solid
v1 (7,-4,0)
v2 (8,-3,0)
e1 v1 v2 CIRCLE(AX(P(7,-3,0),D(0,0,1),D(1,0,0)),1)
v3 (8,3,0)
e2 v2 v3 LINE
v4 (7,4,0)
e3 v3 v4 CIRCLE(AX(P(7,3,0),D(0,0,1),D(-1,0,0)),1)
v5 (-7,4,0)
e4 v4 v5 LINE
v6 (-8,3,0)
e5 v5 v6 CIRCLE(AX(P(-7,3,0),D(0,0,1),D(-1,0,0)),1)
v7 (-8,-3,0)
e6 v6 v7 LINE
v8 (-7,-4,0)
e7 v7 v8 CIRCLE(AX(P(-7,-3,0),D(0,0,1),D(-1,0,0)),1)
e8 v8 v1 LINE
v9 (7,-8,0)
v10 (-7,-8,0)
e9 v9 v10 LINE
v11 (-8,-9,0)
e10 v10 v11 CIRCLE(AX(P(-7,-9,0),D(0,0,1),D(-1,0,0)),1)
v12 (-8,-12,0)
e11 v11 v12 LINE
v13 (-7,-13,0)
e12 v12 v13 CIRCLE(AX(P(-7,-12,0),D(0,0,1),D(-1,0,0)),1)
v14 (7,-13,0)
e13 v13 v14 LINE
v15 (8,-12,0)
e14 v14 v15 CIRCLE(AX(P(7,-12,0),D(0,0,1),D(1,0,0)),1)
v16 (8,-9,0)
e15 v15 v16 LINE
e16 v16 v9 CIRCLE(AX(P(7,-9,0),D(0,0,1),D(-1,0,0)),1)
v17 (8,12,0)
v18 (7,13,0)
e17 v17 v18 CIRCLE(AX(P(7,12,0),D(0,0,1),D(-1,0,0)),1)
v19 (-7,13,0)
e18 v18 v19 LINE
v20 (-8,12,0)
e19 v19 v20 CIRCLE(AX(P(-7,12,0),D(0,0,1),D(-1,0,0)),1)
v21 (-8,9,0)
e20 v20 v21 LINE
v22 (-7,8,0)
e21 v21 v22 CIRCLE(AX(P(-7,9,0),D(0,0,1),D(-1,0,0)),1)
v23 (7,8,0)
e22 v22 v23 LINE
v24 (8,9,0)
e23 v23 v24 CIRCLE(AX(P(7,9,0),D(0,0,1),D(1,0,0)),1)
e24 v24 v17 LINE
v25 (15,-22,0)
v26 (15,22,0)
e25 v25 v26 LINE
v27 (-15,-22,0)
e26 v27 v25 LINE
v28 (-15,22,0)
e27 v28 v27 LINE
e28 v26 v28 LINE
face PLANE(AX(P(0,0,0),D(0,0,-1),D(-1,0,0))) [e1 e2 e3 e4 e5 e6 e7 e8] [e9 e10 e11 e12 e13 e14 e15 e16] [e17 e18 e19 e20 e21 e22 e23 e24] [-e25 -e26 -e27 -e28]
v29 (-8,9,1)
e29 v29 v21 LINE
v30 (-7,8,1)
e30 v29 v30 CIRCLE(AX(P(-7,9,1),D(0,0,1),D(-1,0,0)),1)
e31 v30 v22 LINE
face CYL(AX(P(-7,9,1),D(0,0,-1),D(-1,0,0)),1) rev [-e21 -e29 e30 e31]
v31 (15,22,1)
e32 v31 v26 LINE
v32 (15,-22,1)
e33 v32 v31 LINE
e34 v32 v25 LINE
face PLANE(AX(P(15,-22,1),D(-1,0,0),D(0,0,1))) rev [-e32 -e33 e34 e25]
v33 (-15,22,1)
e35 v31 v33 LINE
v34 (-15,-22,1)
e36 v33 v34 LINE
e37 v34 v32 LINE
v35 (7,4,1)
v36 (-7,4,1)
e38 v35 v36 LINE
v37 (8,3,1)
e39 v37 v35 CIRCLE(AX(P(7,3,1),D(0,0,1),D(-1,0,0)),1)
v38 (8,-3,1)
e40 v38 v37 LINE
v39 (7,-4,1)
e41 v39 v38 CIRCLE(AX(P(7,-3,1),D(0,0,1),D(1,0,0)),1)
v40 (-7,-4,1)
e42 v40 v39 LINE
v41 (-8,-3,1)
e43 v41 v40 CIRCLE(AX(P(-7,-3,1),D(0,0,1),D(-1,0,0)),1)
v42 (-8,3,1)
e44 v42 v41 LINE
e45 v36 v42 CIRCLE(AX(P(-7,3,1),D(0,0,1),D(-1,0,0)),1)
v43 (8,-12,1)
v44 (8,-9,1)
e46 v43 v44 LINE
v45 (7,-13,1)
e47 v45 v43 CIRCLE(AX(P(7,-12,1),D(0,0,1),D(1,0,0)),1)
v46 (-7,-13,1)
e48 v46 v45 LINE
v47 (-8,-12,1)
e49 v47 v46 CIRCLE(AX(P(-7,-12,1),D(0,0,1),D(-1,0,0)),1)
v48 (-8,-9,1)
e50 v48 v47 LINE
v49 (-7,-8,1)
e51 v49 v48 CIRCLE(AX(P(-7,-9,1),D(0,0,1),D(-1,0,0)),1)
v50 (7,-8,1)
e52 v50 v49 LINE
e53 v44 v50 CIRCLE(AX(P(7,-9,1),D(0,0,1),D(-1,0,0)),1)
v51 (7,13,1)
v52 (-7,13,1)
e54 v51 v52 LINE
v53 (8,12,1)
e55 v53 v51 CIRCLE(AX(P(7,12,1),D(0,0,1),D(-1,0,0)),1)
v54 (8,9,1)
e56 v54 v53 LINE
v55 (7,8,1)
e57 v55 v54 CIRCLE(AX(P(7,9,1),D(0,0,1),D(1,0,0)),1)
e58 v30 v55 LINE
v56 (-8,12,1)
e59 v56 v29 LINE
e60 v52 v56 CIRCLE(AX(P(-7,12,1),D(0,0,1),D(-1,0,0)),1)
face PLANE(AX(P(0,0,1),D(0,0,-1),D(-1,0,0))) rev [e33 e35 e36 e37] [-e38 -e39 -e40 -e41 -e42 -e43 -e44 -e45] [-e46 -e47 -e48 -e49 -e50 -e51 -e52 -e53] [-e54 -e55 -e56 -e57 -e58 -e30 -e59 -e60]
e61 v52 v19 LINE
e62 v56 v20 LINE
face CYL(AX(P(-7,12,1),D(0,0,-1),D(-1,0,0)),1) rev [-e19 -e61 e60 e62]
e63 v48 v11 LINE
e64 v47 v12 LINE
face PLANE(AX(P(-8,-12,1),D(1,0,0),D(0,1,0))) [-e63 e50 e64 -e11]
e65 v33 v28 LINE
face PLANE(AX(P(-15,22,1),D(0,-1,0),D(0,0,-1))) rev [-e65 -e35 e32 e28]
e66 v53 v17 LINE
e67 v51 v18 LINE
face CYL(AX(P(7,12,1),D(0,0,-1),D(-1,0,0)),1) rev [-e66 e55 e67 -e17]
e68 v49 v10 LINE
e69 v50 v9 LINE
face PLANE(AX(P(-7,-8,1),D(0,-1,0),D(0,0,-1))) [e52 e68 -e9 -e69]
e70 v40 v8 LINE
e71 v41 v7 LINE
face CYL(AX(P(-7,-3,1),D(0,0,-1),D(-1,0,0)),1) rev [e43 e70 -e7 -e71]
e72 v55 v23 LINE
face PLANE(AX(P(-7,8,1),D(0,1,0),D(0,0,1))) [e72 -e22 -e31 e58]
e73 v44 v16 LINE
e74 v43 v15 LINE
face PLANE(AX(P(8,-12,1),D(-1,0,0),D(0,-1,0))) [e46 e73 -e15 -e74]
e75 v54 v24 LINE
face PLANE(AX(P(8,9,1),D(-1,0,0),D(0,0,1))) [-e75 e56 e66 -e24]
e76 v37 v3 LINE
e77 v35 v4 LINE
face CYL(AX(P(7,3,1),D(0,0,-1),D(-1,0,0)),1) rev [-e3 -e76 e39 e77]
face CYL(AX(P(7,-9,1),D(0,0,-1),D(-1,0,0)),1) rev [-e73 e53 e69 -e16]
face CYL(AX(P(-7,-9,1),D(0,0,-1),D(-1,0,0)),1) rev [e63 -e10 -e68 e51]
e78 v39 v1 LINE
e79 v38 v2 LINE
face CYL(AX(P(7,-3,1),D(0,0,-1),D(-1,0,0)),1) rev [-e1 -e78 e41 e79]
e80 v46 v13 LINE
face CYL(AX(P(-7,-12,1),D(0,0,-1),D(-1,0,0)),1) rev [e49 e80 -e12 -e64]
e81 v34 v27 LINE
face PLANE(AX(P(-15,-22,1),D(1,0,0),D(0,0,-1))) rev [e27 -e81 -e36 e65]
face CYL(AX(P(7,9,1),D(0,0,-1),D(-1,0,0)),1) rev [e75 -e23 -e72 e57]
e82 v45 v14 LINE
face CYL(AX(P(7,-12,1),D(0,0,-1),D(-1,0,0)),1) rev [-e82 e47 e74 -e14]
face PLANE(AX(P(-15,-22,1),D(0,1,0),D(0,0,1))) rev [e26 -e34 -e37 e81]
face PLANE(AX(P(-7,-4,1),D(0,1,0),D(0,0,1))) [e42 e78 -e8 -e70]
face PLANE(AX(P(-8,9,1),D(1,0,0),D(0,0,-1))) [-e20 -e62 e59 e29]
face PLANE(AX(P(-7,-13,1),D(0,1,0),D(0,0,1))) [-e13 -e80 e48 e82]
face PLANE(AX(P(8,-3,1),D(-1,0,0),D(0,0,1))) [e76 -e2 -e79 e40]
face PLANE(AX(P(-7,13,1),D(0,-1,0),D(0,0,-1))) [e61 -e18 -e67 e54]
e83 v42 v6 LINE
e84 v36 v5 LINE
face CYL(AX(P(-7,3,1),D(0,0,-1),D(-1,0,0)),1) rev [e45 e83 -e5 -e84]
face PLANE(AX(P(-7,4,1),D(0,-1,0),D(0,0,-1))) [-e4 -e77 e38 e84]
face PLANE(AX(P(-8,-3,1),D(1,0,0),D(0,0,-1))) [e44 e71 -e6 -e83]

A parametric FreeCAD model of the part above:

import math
import FreeCAD as App
import Part
import Sketcher
Q = App.Units.Quantity

doc = App.newDocument("Part")
body = doc.addObject("PartDesign::Body", "Body")

# Sketch on XY plane
sketch1 = body.newObject("Sketcher::SketchObject", "Sketch")
sketch1.AttachmentSupport = (doc.getObject("XY_Plane"), [""])
sketch1.MapMode = "FlatFace"
sketch1.addGeometry([
    Part.LineSegment(App.Vector(-15, 22, 0), App.Vector(-15, -22, 0)),  # 0
    Part.LineSegment(App.Vector(-15, -22, 0), App.Vector(15, -22, 0)),  # 1
    Part.LineSegment(App.Vector(15, -22, 0), App.Vector(15, 22, 0)),  # 2
    Part.LineSegment(App.Vector(15, 22, 0), App.Vector(-15, 22, 0)),  # 3
    Part.LineSegment(App.Vector(7, -13, 0), App.Vector(-7, -13, 0)),  # 4
    Part.ArcOfCircle(Part.Circle(App.Vector(-7, -12, 0), App.Vector(0, 0, 1), 1), math.radians(-180), math.radians(-90)),  # 5
    Part.LineSegment(App.Vector(-8, -12, 0), App.Vector(-8, -9, 0)),  # 6
    Part.ArcOfCircle(Part.Circle(App.Vector(-7, -9, 0), App.Vector(0, 0, 1), 1), math.radians(90), math.radians(180)),  # 7
    Part.LineSegment(App.Vector(-7, -8, 0), App.Vector(7, -8, 0)),  # 8
    Part.ArcOfCircle(Part.Circle(App.Vector(7, -9, 0), App.Vector(0, 0, 1), 1), math.radians(0), math.radians(90)),  # 9
    Part.LineSegment(App.Vector(8, -9, 0), App.Vector(8, -12, 0)),  # 10
    Part.ArcOfCircle(Part.Circle(App.Vector(7, -12, 0), App.Vector(0, 0, 1), 1), math.radians(-90), math.radians(0)),  # 11
    Part.LineSegment(App.Vector(7, -4, 0), App.Vector(-7, -4, 0)),  # 12
    Part.ArcOfCircle(Part.Circle(App.Vector(-7, -3, 0), App.Vector(0, 0, 1), 1), math.radians(-180), math.radians(-90)),  # 13
    Part.LineSegment(App.Vector(-8, -3, 0), App.Vector(-8, 3, 0)),  # 14
    Part.ArcOfCircle(Part.Circle(App.Vector(-7, 3, 0), App.Vector(0, 0, 1), 1), math.radians(90), math.radians(180)),  # 15
    Part.LineSegment(App.Vector(-7, 4, 0), App.Vector(7, 4, 0)),  # 16
    Part.ArcOfCircle(Part.Circle(App.Vector(7, 3, 0), App.Vector(0, 0, 1), 1), math.radians(0), math.radians(90)),  # 17
    Part.LineSegment(App.Vector(8, 3, 0), App.Vector(8, -3, 0)),  # 18
    Part.ArcOfCircle(Part.Circle(App.Vector(7, -3, 0), App.Vector(0, 0, 1), 1), math.radians(-90), math.radians(0)),  # 19
    Part.LineSegment(App.Vector(7, 8, 0), App.Vector(-7, 8, 0)),  # 20
    Part.ArcOfCircle(Part.Circle(App.Vector(-7, 9, 0), App.Vector(0, 0, 1), 1), math.radians(-180), math.radians(-90)),  # 21
    Part.LineSegment(App.Vector(-8, 9, 0), App.Vector(-8, 12, 0)),  # 22
    Part.ArcOfCircle(Part.Circle(App.Vector(-7, 12, 0), App.Vector(0, 0, 1), 1), math.radians(90), math.radians(180)),  # 23
    Part.LineSegment(App.Vector(-7, 13, 0), App.Vector(7, 13, 0)),  # 24
    Part.ArcOfCircle(Part.Circle(App.Vector(7, 12, 0), App.Vector(0, 0, 1), 1), math.radians(0), math.radians(90)),  # 25
    Part.LineSegment(App.Vector(8, 12, 0), App.Vector(8, 9, 0)),  # 26
    Part.ArcOfCircle(Part.Circle(App.Vector(7, 9, 0), App.Vector(0, 0, 1), 1), math.radians(-90), math.radians(0)),  # 27
], False)
sketch1.addConstraint([
    Sketcher.Constraint("Coincident", 0, 2, 1, 1),
    Sketcher.Constraint("Coincident", 1, 2, 2, 1),
    Sketcher.Constraint("Coincident", 2, 2, 3, 1),
    Sketcher.Constraint("Coincident", 3, 2, 0, 1),
    Sketcher.Constraint("Tangent", 4, 2, 5, 2),
    Sketcher.Constraint("Tangent", 5, 1, 6, 1),
    Sketcher.Constraint("Tangent", 6, 2, 7, 2),
    Sketcher.Constraint("Tangent", 7, 1, 8, 1),
    Sketcher.Constraint("Tangent", 8, 2, 9, 2),
    Sketcher.Constraint("Tangent", 9, 1, 10, 1),
    Sketcher.Constraint("Tangent", 10, 2, 11, 2),
    Sketcher.Constraint("Tangent", 11, 1, 4, 1),
    Sketcher.Constraint("Tangent", 12, 2, 13, 2),
    Sketcher.Constraint("Tangent", 13, 1, 14, 1),
    Sketcher.Constraint("Tangent", 14, 2, 15, 2),
    Sketcher.Constraint("Tangent", 15, 1, 16, 1),
    Sketcher.Constraint("Tangent", 16, 2, 17, 2),
    Sketcher.Constraint("Tangent", 17, 1, 18, 1),
    Sketcher.Constraint("Tangent", 18, 2, 19, 2),
    Sketcher.Constraint("Tangent", 19, 1, 12, 1),
    Sketcher.Constraint("Tangent", 20, 2, 21, 2),
    Sketcher.Constraint("Tangent", 21, 1, 22, 1),
    Sketcher.Constraint("Tangent", 22, 2, 23, 2),
    Sketcher.Constraint("Tangent", 23, 1, 24, 1),
    Sketcher.Constraint("Tangent", 24, 2, 25, 2),
    Sketcher.Constraint("Tangent", 25, 1, 26, 1),
    Sketcher.Constraint("Tangent", 26, 2, 27, 2),
    Sketcher.Constraint("Tangent", 27, 1, 20, 1),
    Sketcher.Constraint("Vertical", 0),
    Sketcher.Constraint("Horizontal", 1),
    Sketcher.Constraint("Vertical", 2),
    Sketcher.Constraint("Horizontal", 3),
    Sketcher.Constraint("Horizontal", 4),
    Sketcher.Constraint("Vertical", 6),
    Sketcher.Constraint("Horizontal", 8),
    Sketcher.Constraint("Vertical", 10),
    Sketcher.Constraint("Horizontal", 12),
    Sketcher.Constraint("Vertical", 14),
    Sketcher.Constraint("Horizontal", 16),
    Sketcher.Constraint("Vertical", 18),
    Sketcher.Constraint("Horizontal", 20),
    Sketcher.Constraint("Vertical", 22),
    Sketcher.Constraint("Horizontal", 24),
    Sketcher.Constraint("Vertical", 26),
    Sketcher.Constraint("Equal", 5, 7),
    Sketcher.Constraint("Equal", 7, 9),
    Sketcher.Constraint("Equal", 9, 11),
    Sketcher.Constraint("Equal", 11, 13),
    Sketcher.Constraint("Equal", 13, 15),
    Sketcher.Constraint("Equal", 15, 17),
    Sketcher.Constraint("Equal", 17, 19),
    Sketcher.Constraint("Equal", 19, 21),
    Sketcher.Constraint("Equal", 21, 23),
    Sketcher.Constraint("Equal", 23, 25),
    Sketcher.Constraint("Equal", 25, 27),
    Sketcher.Constraint("Symmetric", 13, 3, 17, 3, -1, 1),
    Sketcher.Constraint("Symmetric", 9, 3, 21, 3, -1, 1),
    Sketcher.Constraint("Symmetric", 5, 3, 25, 3, -1, 1),
    Sketcher.Constraint("Symmetric", 0, 2, 2, 2, -1, 1),
    Sketcher.Constraint("Vertical", 7, 3, 13, 3),
    Sketcher.Constraint("Vertical", 11, 3, 17, 3),
    Sketcher.Constraint("Radius", 5, Q("1 mm")),
    Sketcher.Constraint("DistanceX", 1, 1, 1, 2, Q("30 mm")),
    Sketcher.Constraint("DistanceX", 4, 2, 4, 1, Q("14 mm")),
    Sketcher.Constraint("DistanceY", 0, 2, 0, 1, Q("44 mm")),
    Sketcher.Constraint("DistanceY", 6, 1, 6, 2, Q("3 mm")),
    Sketcher.Constraint("DistanceY", 14, 1, 14, 2, Q("6 mm")),
    Sketcher.Constraint("DistanceY", 5, 3, -1, 1, Q("12 mm")),
])
pad1 = body.newObject("PartDesign::Pad", "Pad")
pad1.Profile = sketch1
pad1.Length = 1

doc.recompute()
